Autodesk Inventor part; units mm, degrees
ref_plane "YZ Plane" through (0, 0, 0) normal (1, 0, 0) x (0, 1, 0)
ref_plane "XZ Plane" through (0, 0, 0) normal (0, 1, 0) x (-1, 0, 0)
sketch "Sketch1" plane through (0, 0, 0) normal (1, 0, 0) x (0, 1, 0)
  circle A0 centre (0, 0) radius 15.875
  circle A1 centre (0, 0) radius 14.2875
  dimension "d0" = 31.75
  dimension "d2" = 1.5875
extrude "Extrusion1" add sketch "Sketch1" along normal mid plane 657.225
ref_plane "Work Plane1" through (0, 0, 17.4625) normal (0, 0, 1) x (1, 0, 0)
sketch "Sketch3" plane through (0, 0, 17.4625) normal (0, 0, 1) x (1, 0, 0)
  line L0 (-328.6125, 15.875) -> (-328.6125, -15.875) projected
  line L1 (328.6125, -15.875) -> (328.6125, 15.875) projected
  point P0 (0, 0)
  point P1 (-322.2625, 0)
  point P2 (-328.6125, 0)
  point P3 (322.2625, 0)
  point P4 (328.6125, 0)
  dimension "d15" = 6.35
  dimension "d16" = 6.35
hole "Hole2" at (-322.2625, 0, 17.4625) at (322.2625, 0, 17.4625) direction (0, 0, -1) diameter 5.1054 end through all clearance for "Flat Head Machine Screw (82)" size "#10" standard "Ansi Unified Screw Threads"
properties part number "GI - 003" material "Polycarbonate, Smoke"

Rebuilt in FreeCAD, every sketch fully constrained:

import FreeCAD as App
import Part
import Sketcher

V = App.Vector
Q = App.Units.Quantity

doc = App.newDocument("Part")
body = doc.addObject("PartDesign::Body", "Body")

# Sketch on YZ plane
sketch1 = body.newObject("Sketcher::SketchObject", "Sketch")
sketch1.AttachmentSupport = (doc.getObject("YZ_Plane"), [""])
sketch1.MapMode = "FlatFace"
sketch1.addGeometry([
    Part.Circle(V(0, 0, 0), V(0, 0, 1), 16),
    Part.Circle(V(0, 0, 0), V(0, 0, 1), 14),
], False)
sketch1.addConstraint([
    Sketcher.Constraint("Coincident", 0, 3, -1, 1),
    Sketcher.Constraint("Coincident", 1, 3, -1, 1),
    Sketcher.Constraint("Diameter", 0, Q("1.25 in")),
    Sketcher.Constraint("Diameter", 1, Q("1.125 in")),
])
pad1 = body.newObject("PartDesign::Pad", "Pad")
pad1.Profile = sketch1
pad1.Length = Q("25.875 in")
pad1.Midplane = True

# Sketch on XY plane
sketch2 = body.newObject("Sketcher::SketchObject", "Sketch001")
sketch2.AttachmentSupport = (doc.getObject("XY_Plane"), [""])
sketch2.MapMode = "FlatFace"
sketch2.AttachmentOffset = App.Placement(V(0, 0, 0.6875 * 25.4), App.Rotation())
sketch2.addGeometry([
    Part.Circle(V(-322.3, 0, 0), V(0, 0, 1), 2.6),
    Part.Circle(V(322.3, 0, 0), V(0, 0, 1), 2.6),
], False)
sketch2.addConstraint([
    Sketcher.Constraint("Equal", 0, 1),
    Sketcher.Constraint("Symmetric", 0, 3, 1, 3, -1, 1),
    Sketcher.Constraint("PointOnObject", 0, 3, -1),
    Sketcher.Constraint("Diameter", 0, Q("0.201 in")),
    Sketcher.Constraint("DistanceX", 0, 3, -1, 1, Q("12.6875 in")),
])
doc.recompute()
hole = body.newObject("PartDesign::Hole", "Hole")
hole.Profile = sketch2
hole.ThreadType = "None"
hole.Diameter = Q("0.201 in")
hole.DepthType = "ThroughAll"

doc.recompute()
